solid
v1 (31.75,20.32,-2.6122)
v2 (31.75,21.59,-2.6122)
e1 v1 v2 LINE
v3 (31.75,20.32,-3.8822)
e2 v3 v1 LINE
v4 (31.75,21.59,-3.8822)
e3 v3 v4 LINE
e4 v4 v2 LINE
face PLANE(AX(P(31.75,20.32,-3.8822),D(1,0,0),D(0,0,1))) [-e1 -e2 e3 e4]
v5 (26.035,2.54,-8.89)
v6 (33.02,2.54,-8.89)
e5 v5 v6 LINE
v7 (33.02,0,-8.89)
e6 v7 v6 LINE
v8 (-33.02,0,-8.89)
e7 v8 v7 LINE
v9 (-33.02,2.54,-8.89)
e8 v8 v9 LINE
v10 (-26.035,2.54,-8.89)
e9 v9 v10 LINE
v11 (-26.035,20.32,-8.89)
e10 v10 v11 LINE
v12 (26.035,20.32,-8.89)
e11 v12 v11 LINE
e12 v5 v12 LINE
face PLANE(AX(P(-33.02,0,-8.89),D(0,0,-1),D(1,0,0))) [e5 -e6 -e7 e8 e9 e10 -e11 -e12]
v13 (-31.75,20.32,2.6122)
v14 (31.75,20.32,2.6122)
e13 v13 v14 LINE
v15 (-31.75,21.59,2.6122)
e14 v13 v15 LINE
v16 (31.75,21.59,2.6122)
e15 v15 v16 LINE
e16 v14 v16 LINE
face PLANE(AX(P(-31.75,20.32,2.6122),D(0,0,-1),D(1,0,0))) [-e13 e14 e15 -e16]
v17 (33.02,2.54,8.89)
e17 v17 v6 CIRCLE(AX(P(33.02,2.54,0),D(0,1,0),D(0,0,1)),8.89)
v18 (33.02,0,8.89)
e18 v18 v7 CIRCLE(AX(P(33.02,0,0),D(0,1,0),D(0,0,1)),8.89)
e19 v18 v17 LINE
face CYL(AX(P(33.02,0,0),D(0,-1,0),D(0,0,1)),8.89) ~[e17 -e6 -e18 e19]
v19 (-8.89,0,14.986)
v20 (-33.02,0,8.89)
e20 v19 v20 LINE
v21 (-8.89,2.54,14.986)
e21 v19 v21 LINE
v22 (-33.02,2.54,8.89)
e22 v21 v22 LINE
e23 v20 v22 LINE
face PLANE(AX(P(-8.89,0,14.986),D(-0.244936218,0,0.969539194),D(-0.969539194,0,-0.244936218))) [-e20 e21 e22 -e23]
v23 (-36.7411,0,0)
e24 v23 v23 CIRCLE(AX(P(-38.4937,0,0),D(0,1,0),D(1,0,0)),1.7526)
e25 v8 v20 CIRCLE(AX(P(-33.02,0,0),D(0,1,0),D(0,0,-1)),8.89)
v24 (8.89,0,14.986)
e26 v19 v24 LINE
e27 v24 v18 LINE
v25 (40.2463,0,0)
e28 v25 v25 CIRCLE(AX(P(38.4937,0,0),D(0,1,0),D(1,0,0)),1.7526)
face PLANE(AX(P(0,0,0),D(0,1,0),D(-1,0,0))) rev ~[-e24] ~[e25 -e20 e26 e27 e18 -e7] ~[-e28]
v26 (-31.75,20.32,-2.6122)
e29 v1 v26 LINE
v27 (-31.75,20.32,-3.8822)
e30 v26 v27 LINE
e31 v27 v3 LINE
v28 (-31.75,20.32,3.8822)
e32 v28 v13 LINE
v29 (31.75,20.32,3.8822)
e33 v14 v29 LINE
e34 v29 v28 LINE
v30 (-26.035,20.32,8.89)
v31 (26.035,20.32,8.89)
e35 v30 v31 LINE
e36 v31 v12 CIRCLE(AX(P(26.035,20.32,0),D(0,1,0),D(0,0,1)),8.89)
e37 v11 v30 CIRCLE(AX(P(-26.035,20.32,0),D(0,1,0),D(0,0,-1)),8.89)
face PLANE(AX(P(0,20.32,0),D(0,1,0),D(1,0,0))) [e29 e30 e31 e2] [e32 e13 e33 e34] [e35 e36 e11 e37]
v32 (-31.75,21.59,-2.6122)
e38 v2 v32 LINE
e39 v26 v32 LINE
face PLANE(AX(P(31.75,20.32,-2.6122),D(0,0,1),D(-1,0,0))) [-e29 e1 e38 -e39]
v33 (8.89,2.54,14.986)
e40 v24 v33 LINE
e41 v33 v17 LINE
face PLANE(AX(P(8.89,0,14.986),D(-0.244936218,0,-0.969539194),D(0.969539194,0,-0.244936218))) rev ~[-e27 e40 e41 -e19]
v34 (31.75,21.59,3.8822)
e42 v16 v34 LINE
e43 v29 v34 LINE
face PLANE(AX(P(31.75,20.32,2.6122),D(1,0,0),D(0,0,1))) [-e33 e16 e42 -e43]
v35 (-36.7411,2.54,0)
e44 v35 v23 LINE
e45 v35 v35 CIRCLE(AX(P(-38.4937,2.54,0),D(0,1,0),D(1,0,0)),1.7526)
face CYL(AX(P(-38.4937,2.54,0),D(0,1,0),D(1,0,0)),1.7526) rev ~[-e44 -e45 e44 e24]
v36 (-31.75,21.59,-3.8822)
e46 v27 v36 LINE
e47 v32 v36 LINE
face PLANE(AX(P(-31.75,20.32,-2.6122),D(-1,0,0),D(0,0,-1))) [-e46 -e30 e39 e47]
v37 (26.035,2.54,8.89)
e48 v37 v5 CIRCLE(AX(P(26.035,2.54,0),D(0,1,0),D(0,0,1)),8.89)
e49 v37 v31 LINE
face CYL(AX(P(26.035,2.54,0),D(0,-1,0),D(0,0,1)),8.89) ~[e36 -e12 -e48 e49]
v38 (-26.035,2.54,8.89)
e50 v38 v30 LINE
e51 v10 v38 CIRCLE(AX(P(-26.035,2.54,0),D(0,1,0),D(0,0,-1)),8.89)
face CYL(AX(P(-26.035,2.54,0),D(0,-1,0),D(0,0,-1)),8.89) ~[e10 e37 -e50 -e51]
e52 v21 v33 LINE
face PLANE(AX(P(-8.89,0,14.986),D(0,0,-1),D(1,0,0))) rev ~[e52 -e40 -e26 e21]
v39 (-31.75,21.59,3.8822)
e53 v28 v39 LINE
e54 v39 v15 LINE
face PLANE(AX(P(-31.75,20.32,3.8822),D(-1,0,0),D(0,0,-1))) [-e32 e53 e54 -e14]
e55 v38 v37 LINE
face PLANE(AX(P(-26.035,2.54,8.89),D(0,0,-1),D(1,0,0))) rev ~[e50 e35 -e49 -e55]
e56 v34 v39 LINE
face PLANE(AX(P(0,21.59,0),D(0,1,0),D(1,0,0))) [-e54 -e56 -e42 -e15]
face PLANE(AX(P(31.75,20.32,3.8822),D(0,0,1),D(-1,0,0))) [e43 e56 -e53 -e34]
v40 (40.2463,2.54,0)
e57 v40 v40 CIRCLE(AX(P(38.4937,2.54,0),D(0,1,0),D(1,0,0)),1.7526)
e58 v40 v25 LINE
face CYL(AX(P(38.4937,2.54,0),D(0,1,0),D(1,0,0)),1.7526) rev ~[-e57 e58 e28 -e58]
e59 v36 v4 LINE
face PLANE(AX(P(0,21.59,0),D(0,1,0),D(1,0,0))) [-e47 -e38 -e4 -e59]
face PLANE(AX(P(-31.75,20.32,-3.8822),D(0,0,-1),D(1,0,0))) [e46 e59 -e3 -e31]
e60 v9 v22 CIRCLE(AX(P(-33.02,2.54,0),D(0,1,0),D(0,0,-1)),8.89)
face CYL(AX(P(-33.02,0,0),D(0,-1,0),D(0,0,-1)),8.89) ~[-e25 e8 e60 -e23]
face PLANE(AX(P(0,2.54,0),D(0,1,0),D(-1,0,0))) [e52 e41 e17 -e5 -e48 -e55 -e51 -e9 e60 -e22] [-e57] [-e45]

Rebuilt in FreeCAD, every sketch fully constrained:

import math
import FreeCAD as App
import Part
import Sketcher
Q = App.Units.Quantity


def add_polygon(sketch, points):
    """Adds a closed chain of lines whose ends are joined by coincident constraints."""
    first, n = sketch.GeometryCount, len(points)
    for a, b in zip(points, points[1:] + points[:1]):
        sketch.addGeometry(Part.LineSegment(App.Vector(*a, 0), App.Vector(*b, 0)), False)
    for i in range(n):
        sketch.addConstraint(Sketcher.Constraint("Coincident", first + i, 2, first + (i + 1) % n, 1))

doc = App.newDocument("Part")
body = doc.addObject("PartDesign::Body", "Body")

# Sketch on XZ plane
sketch1 = doc.addObject("Sketcher::SketchObject", "Sketch")
body.addObject(sketch1)
sketch1.AttachmentSupport = (doc.XZ_Plane, [""])
sketch1.MapMode = "FlatFace"
sketch1.addGeometry(Part.LineSegment(App.Vector(33.02, -8.89, 0), App.Vector(-33.02, -8.89, 0)), False)
sketch1.addGeometry(Part.ArcOfCircle(Part.Circle(App.Vector(-33.02, 0, 0), App.Vector(0, 0, 1), 8.89), math.radians(90), math.radians(270)), False)
sketch1.addGeometry(Part.LineSegment(App.Vector(-33.02, 8.89, 0), App.Vector(-8.89, 14.986, 0)), False)
sketch1.addGeometry(Part.LineSegment(App.Vector(-8.89, 14.986, 0), App.Vector(8.89, 14.986, 0)), False)
sketch1.addGeometry(Part.LineSegment(App.Vector(8.89, 14.986, 0), App.Vector(33.02, 8.89, 0)), False)
sketch1.addGeometry(Part.ArcOfCircle(Part.Circle(App.Vector(33.02, 0, 0), App.Vector(0, 0, 1), 8.89), math.radians(-90), math.radians(90)), False)
sketch1.addConstraint(Sketcher.Constraint("Tangent", 0, 2, 1, 2))
sketch1.addConstraint(Sketcher.Constraint("Coincident", 1, 1, 2, 1))
sketch1.addConstraint(Sketcher.Constraint("Coincident", 2, 2, 3, 1))
sketch1.addConstraint(Sketcher.Constraint("Coincident", 3, 2, 4, 1))
sketch1.addConstraint(Sketcher.Constraint("Coincident", 4, 2, 5, 2))
sketch1.addConstraint(Sketcher.Constraint("Tangent", 5, 1, 0, 1))
sketch1.addConstraint(Sketcher.Constraint("Horizontal", 0))
sketch1.addConstraint(Sketcher.Constraint("Horizontal", 3))
sketch1.addConstraint(Sketcher.Constraint("Equal", 1, 5))
sketch1.addConstraint(Sketcher.Constraint("Symmetric", 1, 3, 5, 3, -1, 1))
sketch1.addConstraint(Sketcher.Constraint("Vertical", 0, 2, 1, 1))
sketch1.addConstraint(Sketcher.Constraint("Vertical", 5, 3, 4, 2))
sketch1.addConstraint(Sketcher.Constraint("Equal", 2, 4))
sketch1.addConstraint(Sketcher.Constraint("Radius", 1, Q("0.35 in")))
sketch1.addConstraint(Sketcher.Constraint("DistanceX", 3, 1, 3, 2, Q("0.7 in")))
sketch1.addConstraint(Sketcher.Constraint("DistanceY", 0, 2, 2, 2, Q("0.94 in")))
sketch1.addConstraint(Sketcher.Constraint("DistanceX", 2, 2, 5, 3, Q("1.65 in")))
pad1 = doc.addObject("PartDesign::Pad", "Pad")
body.addObject(pad1)
pad1.Profile = sketch1
pad1.Length = Q("0.1 in")
pad1.Reversed = True

# Sketch on XZ plane
sketch2 = doc.addObject("Sketcher::SketchObject", "Sketch001")
body.addObject(sketch2)
sketch2.AttachmentSupport = (doc.XZ_Plane, [""])
sketch2.MapMode = "FlatFace"
sketch2.AttachmentOffset = App.Placement(App.Vector(0, 0, -0.1 * 25.4), App.Rotation())
sketch2.addGeometry(Part.ArcOfCircle(Part.Circle(App.Vector(26.035, 0, 0), App.Vector(0, 0, 1), 8.89), math.radians(-90), math.radians(90)), False)
sketch2.addGeometry(Part.LineSegment(App.Vector(26.035, -8.89, 0), App.Vector(-26.035, -8.89, 0)), False)
sketch2.addGeometry(Part.ArcOfCircle(Part.Circle(App.Vector(-26.035, 0, 0), App.Vector(0, 0, 1), 8.89), math.radians(90), math.radians(270)), False)
sketch2.addGeometry(Part.LineSegment(App.Vector(-26.035, 8.89, 0), App.Vector(26.035, 8.89, 0)), False)
sketch2.addConstraint(Sketcher.Constraint("Tangent", 0, 1, 1, 1))
sketch2.addConstraint(Sketcher.Constraint("Tangent", 1, 2, 2, 2))
sketch2.addConstraint(Sketcher.Constraint("Tangent", 2, 1, 3, 1))
sketch2.addConstraint(Sketcher.Constraint("Tangent", 3, 2, 0, 2))
sketch2.addConstraint(Sketcher.Constraint("Horizontal", 1))
sketch2.addConstraint(Sketcher.Constraint("Horizontal", 3))
sketch2.addConstraint(Sketcher.Constraint("Symmetric", 0, 3, 2, 3, -1, 1))
sketch2.addConstraint(Sketcher.Constraint("Radius", 0, Q("0.35 in")))
sketch2.addConstraint(Sketcher.Constraint("DistanceX", 1, 2, 1, 1, Q("2.05 in")))
pad2 = doc.addObject("PartDesign::Pad", "Pad001")
body.addObject(pad2)
pad2.Profile = sketch2
pad2.Length = Q("0.7 in")
pad2.Reversed = True

# Sketch on XZ plane
sketch3 = doc.addObject("Sketcher::SketchObject", "Sketch002")
body.addObject(sketch3)
sketch3.AttachmentSupport = (doc.XZ_Plane, [""])
sketch3.MapMode = "FlatFace"
sketch3.AttachmentOffset = App.Placement(App.Vector(0, 0, -0.1 * 25.4), App.Rotation())
sketch3.addGeometry(Part.Circle(App.Vector(-38.4937, 0, 0), App.Vector(0, 0, 1), 1.7526), False)
sketch3.addGeometry(Part.Circle(App.Vector(38.4937, 0, 0), App.Vector(0, 0, 1), 1.7526), False)
sketch3.addConstraint(Sketcher.Constraint("Equal", 0, 1))
sketch3.addConstraint(Sketcher.Constraint("Symmetric", 0, 3, 1, 3, -1, 1))
sketch3.addConstraint(Sketcher.Constraint("PointOnObject", 0, 3, -1))
sketch3.addConstraint(Sketcher.Constraint("Diameter", 0, Q("0.138 in")))
sketch3.addConstraint(Sketcher.Constraint("DistanceX", 0, 3, 1, 3, Q("3.031 in")))
pocket1 = doc.addObject("PartDesign::Pocket", "Pocket")
body.addObject(pocket1)
pocket1.Profile = sketch3
pocket1.Length = Q("0.7 in")
pocket1.Reversed = True

# Sketch on XZ plane
sketch4 = doc.addObject("Sketcher::SketchObject", "Sketch003")
body.addObject(sketch4)
sketch4.AttachmentSupport = (doc.XZ_Plane, [""])
sketch4.MapMode = "FlatFace"
sketch4.AttachmentOffset = App.Placement(App.Vector(0, 0, -0.8 * 25.4), App.Rotation())
add_polygon(sketch4, [(31.75, -3.8822), (-31.75, -3.8822), (-31.75, -2.6122), (31.75, -2.6122)])  # lines 0-3
add_polygon(sketch4, [(31.75, 2.6122), (-31.75, 2.6122), (-31.75, 3.8822), (31.75, 3.8822)])  # lines 4-7
sketch4.addConstraint(Sketcher.Constraint("Horizontal", 0))
sketch4.addConstraint(Sketcher.Constraint("Vertical", 1))
sketch4.addConstraint(Sketcher.Constraint("Horizontal", 2))
sketch4.addConstraint(Sketcher.Constraint("Vertical", 3))
sketch4.addConstraint(Sketcher.Constraint("Horizontal", 4))
sketch4.addConstraint(Sketcher.Constraint("Vertical", 5))
sketch4.addConstraint(Sketcher.Constraint("Horizontal", 6))
sketch4.addConstraint(Sketcher.Constraint("Vertical", 7))
sketch4.addConstraint(Sketcher.Constraint("Symmetric", 2, 2, 4, 2, -1, 1))
sketch4.addConstraint(Sketcher.Constraint("Symmetric", 0, 2, 6, 2, -1, 1))
sketch4.addConstraint(Sketcher.Constraint("Vertical", 1, 2, 4, 2))
sketch4.addConstraint(Sketcher.Constraint("DistanceX", 0, 2, 0, 1, Q("2.5 in")))
sketch4.addConstraint(Sketcher.Constraint("DistanceY", 1, 1, 1, 2, Q("0.05 in")))
sketch4.addConstraint(Sketcher.Constraint("DistanceY", 0, 2, -1, 1, Q("3.8822 mm")))
pad3 = doc.addObject("PartDesign::Pad", "Pad002")
body.addObject(pad3)
pad3.Profile = sketch4
pad3.Length = Q("0.05 in")
pad3.Reversed = True

doc.recompute()
